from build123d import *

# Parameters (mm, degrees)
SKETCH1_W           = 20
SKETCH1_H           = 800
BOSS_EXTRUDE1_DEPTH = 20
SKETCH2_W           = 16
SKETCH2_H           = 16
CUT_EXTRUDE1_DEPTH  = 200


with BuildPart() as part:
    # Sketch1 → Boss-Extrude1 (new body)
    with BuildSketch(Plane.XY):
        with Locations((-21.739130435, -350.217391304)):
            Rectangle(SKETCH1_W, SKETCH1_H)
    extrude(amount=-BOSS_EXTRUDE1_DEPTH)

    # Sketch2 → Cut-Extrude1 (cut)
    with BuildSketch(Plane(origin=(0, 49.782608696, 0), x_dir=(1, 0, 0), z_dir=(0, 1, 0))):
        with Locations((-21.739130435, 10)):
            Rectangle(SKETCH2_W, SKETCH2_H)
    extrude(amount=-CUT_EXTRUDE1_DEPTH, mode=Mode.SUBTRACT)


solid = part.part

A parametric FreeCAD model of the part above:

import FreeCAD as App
import Part
import Sketcher


def add_polygon(sketch, points):
    """Adds a closed chain of lines whose ends are joined by coincident constraints."""
    first, n = sketch.GeometryCount, len(points)
    for a, b in zip(points, points[1:] + points[:1]):
        sketch.addGeometry(Part.LineSegment(App.Vector(*a, 0), App.Vector(*b, 0)), False)
    for i in range(n):
        sketch.addConstraint(Sketcher.Constraint("Coincident", first + i, 2, first + (i + 1) % n, 1))

doc = App.newDocument("Part")
body = doc.addObject("PartDesign::Body", "Body")

sketch1 = body.newObject("Sketcher::SketchObject", "Sketch")
sketch1.AttachmentSupport = (doc.getObject("XY_Plane"), [""])
sketch1.MapMode = "FlatFace"
add_polygon(sketch1, [(-32, 50), (-32, -750), (-12, -750), (-12, 50)])
sketch1.addConstraint([
    Sketcher.Constraint("Vertical", 0),
    Sketcher.Constraint("Horizontal", 1),
    Sketcher.Constraint("Vertical", 2),
    Sketcher.Constraint("Horizontal", 3),
    Sketcher.Constraint("DistanceX", 1, 1, 1, 2, 20.0),
    Sketcher.Constraint("DistanceY", 0, 2, 0, 1, 800.0),
    Sketcher.Constraint("DistanceX", 0, 2, -1, 1, 31.73913),
    Sketcher.Constraint("DistanceY", 0, 2, -1, 1, 750.217391),
])
pad1 = body.newObject("PartDesign::Pad", "Pad")
pad1.Profile = sketch1
pad1.Length = 20
pad1.Reversed = True

sketch2 = body.newObject("Sketcher::SketchObject", "Sketch001")
sketch2.AttachmentSupport = (doc.getObject("XZ_Plane"), [""])
sketch2.MapMode = "FlatFace"
sketch2.AttachmentOffset = App.Placement(App.Vector(0, 0, -49.782609), App.Rotation())
add_polygon(sketch2, [(-30, -18), (-30, -2), (-14, -2), (-14, -18)])
sketch2.addConstraint([
    Sketcher.Constraint("Vertical", 0),
    Sketcher.Constraint("Horizontal", 1),
    Sketcher.Constraint("Vertical", 2),
    Sketcher.Constraint("Horizontal", 3),
    Sketcher.Constraint("Equal", 3, 0),
    Sketcher.Constraint("DistanceX", 1, 1, 1, 2, 16.0),
    Sketcher.Constraint("DistanceY", 0, 2, -1, 1, 2.0),
    Sketcher.Constraint("DistanceX", 0, 2, -1, 1, 29.73913),
])
pocket1 = body.newObject("PartDesign::Pocket", "Pocket")
pocket1.Profile = sketch2
pocket1.Length = 200
pocket1.Reversed = True

doc.recompute()
